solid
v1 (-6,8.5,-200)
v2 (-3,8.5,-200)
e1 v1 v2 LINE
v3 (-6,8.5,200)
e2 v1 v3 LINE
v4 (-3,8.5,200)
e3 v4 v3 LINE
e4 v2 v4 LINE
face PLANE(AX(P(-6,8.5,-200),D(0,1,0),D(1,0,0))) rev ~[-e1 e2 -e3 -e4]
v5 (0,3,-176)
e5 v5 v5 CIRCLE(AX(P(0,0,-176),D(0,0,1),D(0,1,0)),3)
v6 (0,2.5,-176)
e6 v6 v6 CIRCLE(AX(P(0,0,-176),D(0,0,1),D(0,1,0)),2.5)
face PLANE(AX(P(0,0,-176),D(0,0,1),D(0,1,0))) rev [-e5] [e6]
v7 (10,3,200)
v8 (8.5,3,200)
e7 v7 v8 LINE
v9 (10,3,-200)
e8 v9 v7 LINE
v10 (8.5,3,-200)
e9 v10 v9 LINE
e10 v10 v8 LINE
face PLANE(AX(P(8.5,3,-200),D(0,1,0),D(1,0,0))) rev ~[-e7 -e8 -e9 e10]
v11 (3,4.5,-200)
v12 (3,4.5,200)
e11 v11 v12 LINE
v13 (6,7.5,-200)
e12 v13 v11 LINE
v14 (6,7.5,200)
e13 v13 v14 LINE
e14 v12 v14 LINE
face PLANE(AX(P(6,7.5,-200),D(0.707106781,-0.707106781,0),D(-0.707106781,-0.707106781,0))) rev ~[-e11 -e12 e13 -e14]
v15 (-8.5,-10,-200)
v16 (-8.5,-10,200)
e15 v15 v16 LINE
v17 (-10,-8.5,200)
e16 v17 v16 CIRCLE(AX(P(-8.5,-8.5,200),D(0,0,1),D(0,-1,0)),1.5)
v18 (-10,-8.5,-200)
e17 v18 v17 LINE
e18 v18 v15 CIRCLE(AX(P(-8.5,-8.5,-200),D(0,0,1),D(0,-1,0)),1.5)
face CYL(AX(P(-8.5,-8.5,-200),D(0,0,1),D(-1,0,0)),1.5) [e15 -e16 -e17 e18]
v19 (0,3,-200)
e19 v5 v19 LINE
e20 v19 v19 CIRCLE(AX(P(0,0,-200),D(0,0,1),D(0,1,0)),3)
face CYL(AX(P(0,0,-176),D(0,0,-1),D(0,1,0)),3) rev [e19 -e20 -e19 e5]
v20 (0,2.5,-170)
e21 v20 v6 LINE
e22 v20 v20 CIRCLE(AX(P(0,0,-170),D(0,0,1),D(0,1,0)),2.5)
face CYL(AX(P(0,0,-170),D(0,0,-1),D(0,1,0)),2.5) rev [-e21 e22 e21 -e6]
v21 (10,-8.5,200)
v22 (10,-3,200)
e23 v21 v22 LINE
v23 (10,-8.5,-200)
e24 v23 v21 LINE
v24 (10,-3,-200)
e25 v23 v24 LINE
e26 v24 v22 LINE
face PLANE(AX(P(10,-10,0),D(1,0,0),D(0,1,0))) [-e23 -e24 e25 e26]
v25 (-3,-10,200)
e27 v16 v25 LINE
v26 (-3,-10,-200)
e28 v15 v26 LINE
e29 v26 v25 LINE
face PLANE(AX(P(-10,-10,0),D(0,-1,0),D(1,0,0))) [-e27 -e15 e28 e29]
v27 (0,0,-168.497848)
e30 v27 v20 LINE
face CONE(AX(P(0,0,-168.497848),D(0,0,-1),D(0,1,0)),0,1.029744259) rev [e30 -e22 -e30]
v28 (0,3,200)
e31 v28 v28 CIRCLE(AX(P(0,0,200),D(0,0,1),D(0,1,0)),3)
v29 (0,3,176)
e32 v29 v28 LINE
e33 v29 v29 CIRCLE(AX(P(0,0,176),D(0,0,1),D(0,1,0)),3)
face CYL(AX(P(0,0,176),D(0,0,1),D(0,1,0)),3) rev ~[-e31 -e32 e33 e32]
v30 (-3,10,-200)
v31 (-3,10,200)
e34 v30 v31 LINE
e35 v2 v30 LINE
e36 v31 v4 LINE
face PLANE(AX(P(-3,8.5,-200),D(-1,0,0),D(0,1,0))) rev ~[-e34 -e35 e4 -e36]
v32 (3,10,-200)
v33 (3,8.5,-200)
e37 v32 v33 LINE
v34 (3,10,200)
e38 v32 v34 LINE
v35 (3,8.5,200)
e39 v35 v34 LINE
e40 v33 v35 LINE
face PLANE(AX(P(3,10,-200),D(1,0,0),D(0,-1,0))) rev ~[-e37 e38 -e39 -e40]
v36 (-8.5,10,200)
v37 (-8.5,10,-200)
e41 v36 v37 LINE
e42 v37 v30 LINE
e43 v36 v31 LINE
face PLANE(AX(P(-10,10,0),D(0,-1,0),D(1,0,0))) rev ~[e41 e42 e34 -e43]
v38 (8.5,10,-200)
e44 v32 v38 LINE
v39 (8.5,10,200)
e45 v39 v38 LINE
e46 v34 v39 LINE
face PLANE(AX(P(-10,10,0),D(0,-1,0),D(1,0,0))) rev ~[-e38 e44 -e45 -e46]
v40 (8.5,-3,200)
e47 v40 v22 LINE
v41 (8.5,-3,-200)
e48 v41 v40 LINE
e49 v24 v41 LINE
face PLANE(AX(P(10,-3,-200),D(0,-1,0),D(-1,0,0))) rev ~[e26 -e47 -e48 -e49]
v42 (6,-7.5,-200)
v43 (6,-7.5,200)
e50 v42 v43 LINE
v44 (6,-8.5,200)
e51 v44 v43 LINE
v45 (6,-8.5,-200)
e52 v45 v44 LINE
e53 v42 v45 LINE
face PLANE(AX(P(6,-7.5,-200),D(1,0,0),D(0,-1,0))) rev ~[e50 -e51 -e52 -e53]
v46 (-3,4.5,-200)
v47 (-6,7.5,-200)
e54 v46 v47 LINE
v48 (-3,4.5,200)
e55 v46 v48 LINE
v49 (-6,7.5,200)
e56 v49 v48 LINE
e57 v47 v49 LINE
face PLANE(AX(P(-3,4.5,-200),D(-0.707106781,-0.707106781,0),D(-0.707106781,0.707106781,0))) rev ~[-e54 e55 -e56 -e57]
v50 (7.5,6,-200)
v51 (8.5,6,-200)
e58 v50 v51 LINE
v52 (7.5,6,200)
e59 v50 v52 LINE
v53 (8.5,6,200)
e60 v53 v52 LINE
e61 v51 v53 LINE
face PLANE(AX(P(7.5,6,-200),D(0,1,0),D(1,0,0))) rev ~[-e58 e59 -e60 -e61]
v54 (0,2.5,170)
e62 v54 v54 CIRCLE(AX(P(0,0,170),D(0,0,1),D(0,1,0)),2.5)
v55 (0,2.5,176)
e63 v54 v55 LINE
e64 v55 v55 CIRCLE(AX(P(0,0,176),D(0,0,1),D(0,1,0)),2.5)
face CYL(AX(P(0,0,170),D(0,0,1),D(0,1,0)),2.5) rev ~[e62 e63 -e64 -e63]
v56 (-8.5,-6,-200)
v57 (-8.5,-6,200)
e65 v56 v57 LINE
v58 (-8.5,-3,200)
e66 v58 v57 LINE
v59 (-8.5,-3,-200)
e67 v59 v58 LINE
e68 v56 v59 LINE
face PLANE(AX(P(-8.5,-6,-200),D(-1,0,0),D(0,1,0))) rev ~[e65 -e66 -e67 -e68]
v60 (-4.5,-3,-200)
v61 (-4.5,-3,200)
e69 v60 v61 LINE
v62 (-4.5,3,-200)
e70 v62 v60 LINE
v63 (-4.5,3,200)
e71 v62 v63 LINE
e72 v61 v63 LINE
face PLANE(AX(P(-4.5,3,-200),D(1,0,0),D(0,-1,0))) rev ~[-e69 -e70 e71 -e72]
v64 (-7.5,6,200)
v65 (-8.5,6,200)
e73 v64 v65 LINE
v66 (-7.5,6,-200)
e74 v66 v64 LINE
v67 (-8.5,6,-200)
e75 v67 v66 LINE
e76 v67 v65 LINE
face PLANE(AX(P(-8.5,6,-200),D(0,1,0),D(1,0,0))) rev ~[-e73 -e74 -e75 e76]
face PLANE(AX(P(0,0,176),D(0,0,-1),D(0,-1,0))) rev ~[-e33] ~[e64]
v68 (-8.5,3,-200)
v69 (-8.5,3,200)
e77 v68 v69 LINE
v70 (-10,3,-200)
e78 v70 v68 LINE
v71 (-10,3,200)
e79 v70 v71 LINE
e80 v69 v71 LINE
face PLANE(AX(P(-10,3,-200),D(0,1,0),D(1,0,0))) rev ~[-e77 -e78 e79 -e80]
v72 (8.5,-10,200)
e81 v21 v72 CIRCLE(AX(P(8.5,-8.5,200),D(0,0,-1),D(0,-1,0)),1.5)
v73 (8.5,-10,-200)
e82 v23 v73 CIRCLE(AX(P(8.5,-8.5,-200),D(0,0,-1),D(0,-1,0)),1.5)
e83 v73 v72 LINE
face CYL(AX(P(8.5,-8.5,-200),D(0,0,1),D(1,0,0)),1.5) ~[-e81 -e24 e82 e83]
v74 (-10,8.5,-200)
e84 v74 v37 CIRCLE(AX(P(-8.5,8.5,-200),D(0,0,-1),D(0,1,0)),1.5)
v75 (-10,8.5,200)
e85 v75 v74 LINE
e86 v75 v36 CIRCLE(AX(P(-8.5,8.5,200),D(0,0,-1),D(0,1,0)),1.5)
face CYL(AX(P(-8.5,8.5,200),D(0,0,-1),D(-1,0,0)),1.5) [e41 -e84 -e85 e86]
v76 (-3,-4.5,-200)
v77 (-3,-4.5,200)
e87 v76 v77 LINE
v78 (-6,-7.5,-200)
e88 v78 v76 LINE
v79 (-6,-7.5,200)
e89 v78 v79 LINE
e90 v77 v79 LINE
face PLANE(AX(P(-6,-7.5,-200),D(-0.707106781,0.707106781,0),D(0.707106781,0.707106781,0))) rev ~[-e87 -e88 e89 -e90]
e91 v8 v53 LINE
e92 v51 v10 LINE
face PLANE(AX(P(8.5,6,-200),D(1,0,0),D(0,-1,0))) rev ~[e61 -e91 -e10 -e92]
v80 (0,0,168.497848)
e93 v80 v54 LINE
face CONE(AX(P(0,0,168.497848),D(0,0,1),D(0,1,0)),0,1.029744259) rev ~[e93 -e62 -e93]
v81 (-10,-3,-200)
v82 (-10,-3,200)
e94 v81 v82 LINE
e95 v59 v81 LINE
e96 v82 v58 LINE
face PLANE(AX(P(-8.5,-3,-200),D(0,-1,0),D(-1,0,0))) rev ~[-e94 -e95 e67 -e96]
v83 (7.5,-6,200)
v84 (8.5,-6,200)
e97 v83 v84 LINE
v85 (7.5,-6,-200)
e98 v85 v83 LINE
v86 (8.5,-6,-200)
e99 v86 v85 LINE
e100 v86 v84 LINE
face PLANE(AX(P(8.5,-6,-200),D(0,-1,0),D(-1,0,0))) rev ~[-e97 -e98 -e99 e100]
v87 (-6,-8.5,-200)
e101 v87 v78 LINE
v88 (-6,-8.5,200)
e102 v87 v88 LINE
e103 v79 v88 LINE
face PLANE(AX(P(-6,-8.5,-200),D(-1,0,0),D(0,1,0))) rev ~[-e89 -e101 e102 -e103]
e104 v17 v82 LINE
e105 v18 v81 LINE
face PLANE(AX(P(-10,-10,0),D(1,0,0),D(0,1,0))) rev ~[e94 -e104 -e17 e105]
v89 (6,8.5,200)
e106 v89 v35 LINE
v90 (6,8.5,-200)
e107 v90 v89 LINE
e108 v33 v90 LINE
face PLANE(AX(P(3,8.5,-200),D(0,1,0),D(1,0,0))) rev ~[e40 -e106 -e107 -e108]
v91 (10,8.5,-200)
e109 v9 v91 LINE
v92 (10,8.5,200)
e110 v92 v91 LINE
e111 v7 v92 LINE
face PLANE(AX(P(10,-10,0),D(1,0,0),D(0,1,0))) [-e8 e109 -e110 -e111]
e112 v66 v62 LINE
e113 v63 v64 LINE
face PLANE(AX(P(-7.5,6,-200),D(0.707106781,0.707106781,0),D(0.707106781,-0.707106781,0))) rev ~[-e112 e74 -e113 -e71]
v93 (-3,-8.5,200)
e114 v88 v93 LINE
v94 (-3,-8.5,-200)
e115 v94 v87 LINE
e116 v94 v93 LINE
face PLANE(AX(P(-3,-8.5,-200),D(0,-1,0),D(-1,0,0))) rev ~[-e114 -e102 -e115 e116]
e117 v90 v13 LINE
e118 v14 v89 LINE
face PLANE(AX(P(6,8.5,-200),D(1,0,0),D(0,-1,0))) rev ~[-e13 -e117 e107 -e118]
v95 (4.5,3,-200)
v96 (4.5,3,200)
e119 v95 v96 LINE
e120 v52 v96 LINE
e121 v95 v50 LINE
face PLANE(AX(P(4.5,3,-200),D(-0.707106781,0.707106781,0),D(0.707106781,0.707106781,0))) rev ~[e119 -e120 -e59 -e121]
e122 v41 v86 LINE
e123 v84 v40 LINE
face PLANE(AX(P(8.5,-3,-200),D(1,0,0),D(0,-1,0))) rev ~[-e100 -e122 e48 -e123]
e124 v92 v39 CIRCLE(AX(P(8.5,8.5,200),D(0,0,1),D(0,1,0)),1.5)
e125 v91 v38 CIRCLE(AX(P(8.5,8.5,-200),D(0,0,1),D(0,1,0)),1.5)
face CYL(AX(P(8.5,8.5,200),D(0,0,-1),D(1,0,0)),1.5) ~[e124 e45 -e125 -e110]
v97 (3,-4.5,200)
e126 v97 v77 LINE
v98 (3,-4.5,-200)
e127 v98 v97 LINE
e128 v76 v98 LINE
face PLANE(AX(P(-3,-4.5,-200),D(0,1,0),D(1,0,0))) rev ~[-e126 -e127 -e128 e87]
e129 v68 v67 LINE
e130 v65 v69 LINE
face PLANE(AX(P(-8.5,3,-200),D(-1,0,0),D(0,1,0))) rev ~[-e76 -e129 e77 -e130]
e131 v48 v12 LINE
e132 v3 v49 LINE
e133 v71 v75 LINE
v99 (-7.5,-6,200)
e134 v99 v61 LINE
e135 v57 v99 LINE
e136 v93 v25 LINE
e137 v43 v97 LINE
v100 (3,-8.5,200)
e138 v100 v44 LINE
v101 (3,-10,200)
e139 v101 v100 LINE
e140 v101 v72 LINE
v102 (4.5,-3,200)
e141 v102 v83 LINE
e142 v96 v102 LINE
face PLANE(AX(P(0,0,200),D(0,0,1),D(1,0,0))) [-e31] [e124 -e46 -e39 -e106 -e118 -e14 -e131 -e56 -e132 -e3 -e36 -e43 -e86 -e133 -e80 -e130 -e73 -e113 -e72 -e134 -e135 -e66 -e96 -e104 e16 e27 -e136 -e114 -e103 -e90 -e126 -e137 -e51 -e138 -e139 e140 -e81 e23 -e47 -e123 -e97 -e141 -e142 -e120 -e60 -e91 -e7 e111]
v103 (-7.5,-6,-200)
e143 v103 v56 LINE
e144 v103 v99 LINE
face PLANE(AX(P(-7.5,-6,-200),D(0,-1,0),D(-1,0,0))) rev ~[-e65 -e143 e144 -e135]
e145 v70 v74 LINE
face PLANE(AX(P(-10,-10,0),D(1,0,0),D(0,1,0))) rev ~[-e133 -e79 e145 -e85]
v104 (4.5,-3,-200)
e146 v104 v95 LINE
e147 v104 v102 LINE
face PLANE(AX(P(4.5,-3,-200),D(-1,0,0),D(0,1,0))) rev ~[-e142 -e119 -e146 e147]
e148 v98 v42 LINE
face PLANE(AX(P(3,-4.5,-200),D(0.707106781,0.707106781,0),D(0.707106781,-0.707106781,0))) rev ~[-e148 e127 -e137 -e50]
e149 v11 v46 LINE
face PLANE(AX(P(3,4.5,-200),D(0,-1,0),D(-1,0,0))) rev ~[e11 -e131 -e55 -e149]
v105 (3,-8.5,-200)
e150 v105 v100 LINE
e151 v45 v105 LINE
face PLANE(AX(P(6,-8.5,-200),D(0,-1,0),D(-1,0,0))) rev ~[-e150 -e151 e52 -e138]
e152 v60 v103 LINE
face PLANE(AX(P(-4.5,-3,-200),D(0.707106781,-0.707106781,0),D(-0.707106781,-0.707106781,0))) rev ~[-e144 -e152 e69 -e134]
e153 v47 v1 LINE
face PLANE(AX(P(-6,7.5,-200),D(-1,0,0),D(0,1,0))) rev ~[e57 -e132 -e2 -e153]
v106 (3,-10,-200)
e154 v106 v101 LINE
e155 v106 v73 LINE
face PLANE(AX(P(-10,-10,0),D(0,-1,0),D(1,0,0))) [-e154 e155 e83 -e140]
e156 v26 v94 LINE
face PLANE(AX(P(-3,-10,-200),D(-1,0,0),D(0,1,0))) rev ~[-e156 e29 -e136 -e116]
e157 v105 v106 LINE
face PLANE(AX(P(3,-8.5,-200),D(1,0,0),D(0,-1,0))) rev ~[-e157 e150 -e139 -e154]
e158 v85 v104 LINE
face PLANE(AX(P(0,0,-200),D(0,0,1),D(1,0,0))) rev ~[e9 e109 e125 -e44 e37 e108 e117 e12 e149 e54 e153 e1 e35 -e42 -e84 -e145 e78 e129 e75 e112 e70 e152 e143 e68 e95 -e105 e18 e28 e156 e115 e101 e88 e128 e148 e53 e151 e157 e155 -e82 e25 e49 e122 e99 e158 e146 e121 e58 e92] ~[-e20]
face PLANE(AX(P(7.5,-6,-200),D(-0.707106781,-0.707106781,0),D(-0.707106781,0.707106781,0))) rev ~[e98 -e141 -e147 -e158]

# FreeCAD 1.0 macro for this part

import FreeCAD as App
import Part
import Sketcher

V = App.Vector
Q = App.Units.Quantity


def edges_at(feature, points):
    """Names of the edges that pass closest to the given points."""
    edges = feature.Shape.Edges
    near = lambda p: min(range(len(edges)), key=lambda i: edges[i].distToShape(Part.Vertex(*p))[0])
    return sorted({f"Edge{near(p) + 1}" for p in points})

doc = App.newDocument("Part")
body = doc.addObject("PartDesign::Body", "Body")

# Sketch on XY plane
sketch1 = body.newObject("Sketcher::SketchObject", "Sketch")
sketch1.AttachmentSupport = (doc.getObject("XY_Plane"), [""])
sketch1.MapMode = "FlatFace"
sketch1.addGeometry([
    Part.LineSegment(V(-10, 10, 0), V(-10, -10, 0)),
    Part.LineSegment(V(-10, -10, 0), V(10, -10, 0)),
    Part.LineSegment(V(10, -10, 0), V(10, 10, 0)),
    Part.LineSegment(V(10, 10, 0), V(-10, 10, 0)),
], False)
sketch1.addConstraint([
    Sketcher.Constraint("Coincident", 0, 2, 1, 1),
    Sketcher.Constraint("Coincident", 1, 2, 2, 1),
    Sketcher.Constraint("Coincident", 2, 2, 3, 1),
    Sketcher.Constraint("Coincident", 3, 2, 0, 1),
    Sketcher.Constraint("Vertical", 0),
    Sketcher.Constraint("Horizontal", 1),
    Sketcher.Constraint("Vertical", 2),
    Sketcher.Constraint("Horizontal", 3),
    Sketcher.Constraint("Symmetric", 0, 2, 2, 2, -1, 1),
    Sketcher.Constraint("Equal", 3, 0),
    Sketcher.Constraint("DistanceX", 1, 1, 1, 2, 20.0),
])
pad1 = body.newObject("PartDesign::Pad", "Pad")
pad1.Profile = sketch1
pad1.Length = 400
pad1.Midplane = True
doc.recompute()

fillet = body.newObject("PartDesign::Fillet", "Fillet")
fillet.Base = (pad1, edges_at(pad1, [
    (-10, 10, 0),
    (10, 10, 0),
    (10, -10, 0),
    (-10, -10, 0),
]))
fillet.Radius = 1.5

# Sketch on XY plane
sketch2 = body.newObject("Sketcher::SketchObject", "Sketch001")
sketch2.AttachmentSupport = (doc.getObject("XY_Plane"), [""])
sketch2.MapMode = "FlatFace"
sketch2.AttachmentOffset = App.Placement(V(0, 0, -200), App.Rotation())
sketch2.addGeometry([
    Part.LineSegment(V(10, 3, 0), V(10, -3, 0)),  # 0
    Part.LineSegment(V(10, -3, 0), V(8.5, -3, 0)),  # 1
    Part.LineSegment(V(8.5, -3, 0), V(8.5, -6, 0)),  # 2
    Part.LineSegment(V(8.5, -6, 0), V(7.5, -6, 0)),  # 3
    Part.LineSegment(V(7.5, -6, 0), V(4.5, -3, 0)),  # 4
    Part.LineSegment(V(4.5, -3, 0), V(4.5, 3, 0)),  # 5
    Part.LineSegment(V(4.5, 3, 0), V(7.5, 6, 0)),  # 6
    Part.LineSegment(V(7.5, 6, 0), V(8.5, 6, 0)),  # 7
    Part.LineSegment(V(8.5, 6, 0), V(8.5, 3, 0)),  # 8
    Part.LineSegment(V(8.5, 3, 0), V(10, 3, 0)),  # 9
], False)
sketch2.addConstraint([
    Sketcher.Constraint("Coincident", 0, 2, 1, 1),
    Sketcher.Constraint("Coincident", 1, 2, 2, 1),
    Sketcher.Constraint("Coincident", 2, 2, 3, 1),
    Sketcher.Constraint("Coincident", 3, 2, 4, 1),
    Sketcher.Constraint("Coincident", 4, 2, 5, 1),
    Sketcher.Constraint("Coincident", 5, 2, 6, 1),
    Sketcher.Constraint("Coincident", 6, 2, 7, 1),
    Sketcher.Constraint("Coincident", 7, 2, 8, 1),
    Sketcher.Constraint("Coincident", 8, 2, 9, 1),
    Sketcher.Constraint("Coincident", 9, 2, 0, 1),
    Sketcher.Constraint("Vertical", 0),
    Sketcher.Constraint("Horizontal", 1),
    Sketcher.Constraint("Vertical", 2),
    Sketcher.Constraint("Horizontal", 3),
    Sketcher.Constraint("Vertical", 5),
    Sketcher.Constraint("Horizontal", 7),
    Sketcher.Constraint("Vertical", 8),
    Sketcher.Constraint("Horizontal", 9),
    Sketcher.Constraint("Symmetric", 3, 2, 6, 2, -1),
    Sketcher.Constraint("Symmetric", 1, 2, 8, 2, -1),
    Sketcher.Constraint("Perpendicular", 4, 6),
    Sketcher.Constraint("Horizontal", 1, 2, 4, 2),
    Sketcher.Constraint("Horizontal", 5, 2, 8, 2),
    Sketcher.Constraint("DistanceX", 3, 2, 3, 1, 1.0),
    Sketcher.Constraint("DistanceY", 0, 2, 0, 1, 6.0),
    Sketcher.Constraint("DistanceY", 2, 2, 2, 1, 3.0),
    Sketcher.Constraint("DistanceX", 1, 2, 1, 1, 1.5),
    Sketcher.Constraint("DistanceX", -1, 1, 0, 2, 10.0),
])
pocket1 = body.newObject("PartDesign::Pocket", "Pocket")
pocket1.Profile = sketch2
pocket1.Type = "ThroughAll"
pocket1.Reversed = True
doc.recompute()

polarpattern = body.newObject("PartDesign::PolarPattern", "PolarPattern")
polarpattern.Originals = [pocket1]
polarpattern.Axis = (doc.getObject("Z_Axis"), [""])
polarpattern.Angle = 360
polarpattern.Occurrences = 4
body.Tip = polarpattern

# Sketch on YZ plane
sketch3 = body.newObject("Sketcher::SketchObject", "Sketch002")
sketch3.AttachmentSupport = (doc.getObject("YZ_Plane"), [""])
sketch3.MapMode = "FlatFace"
sketch3.addGeometry([
    Part.LineSegment(V(0, -168.5, 0), V(0, -200, 0)),  # 0
    Part.LineSegment(V(0, -200, 0), V(3, -200, 0)),  # 1
    Part.LineSegment(V(3, -200, 0), V(3, -176, 0)),  # 2
    Part.LineSegment(V(3, -176, 0), V(2.5, -176, 0)),  # 3
    Part.LineSegment(V(2.5, -176, 0), V(2.5, -170, 0)),  # 4
    Part.LineSegment(V(2.5, -170, 0), V(0, -168.5, 0)),  # 5
], False)
sketch3.addConstraint([
    Sketcher.Constraint("Coincident", 0, 2, 1, 1),
    Sketcher.Constraint("Coincident", 1, 2, 2, 1),
    Sketcher.Constraint("Coincident", 2, 2, 3, 1),
    Sketcher.Constraint("Coincident", 3, 2, 4, 1),
    Sketcher.Constraint("Coincident", 4, 2, 5, 1),
    Sketcher.Constraint("Coincident", 5, 2, 0, 1),
    Sketcher.Constraint("Vertical", 0),
    Sketcher.Constraint("Horizontal", 1),
    Sketcher.Constraint("Vertical", 2),
    Sketcher.Constraint("Horizontal", 3),
    Sketcher.Constraint("Vertical", 4),
    Sketcher.Constraint("PointOnObject", 0, 2, -2),
    Sketcher.Constraint("DistanceX", 1, 1, 1, 2, 3.0),
    Sketcher.Constraint("DistanceY", 2, 1, 2, 2, 24.0),
    Sketcher.Constraint("DistanceY", 4, 1, 4, 2, 6.0),
    Sketcher.Constraint("Angle", 5, Q("149 deg")),
    Sketcher.Constraint("DistanceX", 3, 2, 3, 1, 0.5),
    Sketcher.Constraint("DistanceY", 0, 2, -1, 1, 200.0),
])
groove = body.newObject("PartDesign::Groove", "Groove")
groove.Profile = sketch3
groove.ReferenceAxis = (sketch3, ["V_Axis"])
groove.Angle = 360
doc.recompute()

mirrored = body.newObject("PartDesign::Mirrored", "Mirrored")
mirrored.Originals = [groove]
mirrored.MirrorPlane = (doc.getObject("XY_Plane"), [""])
body.Tip = mirrored

doc.recompute()
